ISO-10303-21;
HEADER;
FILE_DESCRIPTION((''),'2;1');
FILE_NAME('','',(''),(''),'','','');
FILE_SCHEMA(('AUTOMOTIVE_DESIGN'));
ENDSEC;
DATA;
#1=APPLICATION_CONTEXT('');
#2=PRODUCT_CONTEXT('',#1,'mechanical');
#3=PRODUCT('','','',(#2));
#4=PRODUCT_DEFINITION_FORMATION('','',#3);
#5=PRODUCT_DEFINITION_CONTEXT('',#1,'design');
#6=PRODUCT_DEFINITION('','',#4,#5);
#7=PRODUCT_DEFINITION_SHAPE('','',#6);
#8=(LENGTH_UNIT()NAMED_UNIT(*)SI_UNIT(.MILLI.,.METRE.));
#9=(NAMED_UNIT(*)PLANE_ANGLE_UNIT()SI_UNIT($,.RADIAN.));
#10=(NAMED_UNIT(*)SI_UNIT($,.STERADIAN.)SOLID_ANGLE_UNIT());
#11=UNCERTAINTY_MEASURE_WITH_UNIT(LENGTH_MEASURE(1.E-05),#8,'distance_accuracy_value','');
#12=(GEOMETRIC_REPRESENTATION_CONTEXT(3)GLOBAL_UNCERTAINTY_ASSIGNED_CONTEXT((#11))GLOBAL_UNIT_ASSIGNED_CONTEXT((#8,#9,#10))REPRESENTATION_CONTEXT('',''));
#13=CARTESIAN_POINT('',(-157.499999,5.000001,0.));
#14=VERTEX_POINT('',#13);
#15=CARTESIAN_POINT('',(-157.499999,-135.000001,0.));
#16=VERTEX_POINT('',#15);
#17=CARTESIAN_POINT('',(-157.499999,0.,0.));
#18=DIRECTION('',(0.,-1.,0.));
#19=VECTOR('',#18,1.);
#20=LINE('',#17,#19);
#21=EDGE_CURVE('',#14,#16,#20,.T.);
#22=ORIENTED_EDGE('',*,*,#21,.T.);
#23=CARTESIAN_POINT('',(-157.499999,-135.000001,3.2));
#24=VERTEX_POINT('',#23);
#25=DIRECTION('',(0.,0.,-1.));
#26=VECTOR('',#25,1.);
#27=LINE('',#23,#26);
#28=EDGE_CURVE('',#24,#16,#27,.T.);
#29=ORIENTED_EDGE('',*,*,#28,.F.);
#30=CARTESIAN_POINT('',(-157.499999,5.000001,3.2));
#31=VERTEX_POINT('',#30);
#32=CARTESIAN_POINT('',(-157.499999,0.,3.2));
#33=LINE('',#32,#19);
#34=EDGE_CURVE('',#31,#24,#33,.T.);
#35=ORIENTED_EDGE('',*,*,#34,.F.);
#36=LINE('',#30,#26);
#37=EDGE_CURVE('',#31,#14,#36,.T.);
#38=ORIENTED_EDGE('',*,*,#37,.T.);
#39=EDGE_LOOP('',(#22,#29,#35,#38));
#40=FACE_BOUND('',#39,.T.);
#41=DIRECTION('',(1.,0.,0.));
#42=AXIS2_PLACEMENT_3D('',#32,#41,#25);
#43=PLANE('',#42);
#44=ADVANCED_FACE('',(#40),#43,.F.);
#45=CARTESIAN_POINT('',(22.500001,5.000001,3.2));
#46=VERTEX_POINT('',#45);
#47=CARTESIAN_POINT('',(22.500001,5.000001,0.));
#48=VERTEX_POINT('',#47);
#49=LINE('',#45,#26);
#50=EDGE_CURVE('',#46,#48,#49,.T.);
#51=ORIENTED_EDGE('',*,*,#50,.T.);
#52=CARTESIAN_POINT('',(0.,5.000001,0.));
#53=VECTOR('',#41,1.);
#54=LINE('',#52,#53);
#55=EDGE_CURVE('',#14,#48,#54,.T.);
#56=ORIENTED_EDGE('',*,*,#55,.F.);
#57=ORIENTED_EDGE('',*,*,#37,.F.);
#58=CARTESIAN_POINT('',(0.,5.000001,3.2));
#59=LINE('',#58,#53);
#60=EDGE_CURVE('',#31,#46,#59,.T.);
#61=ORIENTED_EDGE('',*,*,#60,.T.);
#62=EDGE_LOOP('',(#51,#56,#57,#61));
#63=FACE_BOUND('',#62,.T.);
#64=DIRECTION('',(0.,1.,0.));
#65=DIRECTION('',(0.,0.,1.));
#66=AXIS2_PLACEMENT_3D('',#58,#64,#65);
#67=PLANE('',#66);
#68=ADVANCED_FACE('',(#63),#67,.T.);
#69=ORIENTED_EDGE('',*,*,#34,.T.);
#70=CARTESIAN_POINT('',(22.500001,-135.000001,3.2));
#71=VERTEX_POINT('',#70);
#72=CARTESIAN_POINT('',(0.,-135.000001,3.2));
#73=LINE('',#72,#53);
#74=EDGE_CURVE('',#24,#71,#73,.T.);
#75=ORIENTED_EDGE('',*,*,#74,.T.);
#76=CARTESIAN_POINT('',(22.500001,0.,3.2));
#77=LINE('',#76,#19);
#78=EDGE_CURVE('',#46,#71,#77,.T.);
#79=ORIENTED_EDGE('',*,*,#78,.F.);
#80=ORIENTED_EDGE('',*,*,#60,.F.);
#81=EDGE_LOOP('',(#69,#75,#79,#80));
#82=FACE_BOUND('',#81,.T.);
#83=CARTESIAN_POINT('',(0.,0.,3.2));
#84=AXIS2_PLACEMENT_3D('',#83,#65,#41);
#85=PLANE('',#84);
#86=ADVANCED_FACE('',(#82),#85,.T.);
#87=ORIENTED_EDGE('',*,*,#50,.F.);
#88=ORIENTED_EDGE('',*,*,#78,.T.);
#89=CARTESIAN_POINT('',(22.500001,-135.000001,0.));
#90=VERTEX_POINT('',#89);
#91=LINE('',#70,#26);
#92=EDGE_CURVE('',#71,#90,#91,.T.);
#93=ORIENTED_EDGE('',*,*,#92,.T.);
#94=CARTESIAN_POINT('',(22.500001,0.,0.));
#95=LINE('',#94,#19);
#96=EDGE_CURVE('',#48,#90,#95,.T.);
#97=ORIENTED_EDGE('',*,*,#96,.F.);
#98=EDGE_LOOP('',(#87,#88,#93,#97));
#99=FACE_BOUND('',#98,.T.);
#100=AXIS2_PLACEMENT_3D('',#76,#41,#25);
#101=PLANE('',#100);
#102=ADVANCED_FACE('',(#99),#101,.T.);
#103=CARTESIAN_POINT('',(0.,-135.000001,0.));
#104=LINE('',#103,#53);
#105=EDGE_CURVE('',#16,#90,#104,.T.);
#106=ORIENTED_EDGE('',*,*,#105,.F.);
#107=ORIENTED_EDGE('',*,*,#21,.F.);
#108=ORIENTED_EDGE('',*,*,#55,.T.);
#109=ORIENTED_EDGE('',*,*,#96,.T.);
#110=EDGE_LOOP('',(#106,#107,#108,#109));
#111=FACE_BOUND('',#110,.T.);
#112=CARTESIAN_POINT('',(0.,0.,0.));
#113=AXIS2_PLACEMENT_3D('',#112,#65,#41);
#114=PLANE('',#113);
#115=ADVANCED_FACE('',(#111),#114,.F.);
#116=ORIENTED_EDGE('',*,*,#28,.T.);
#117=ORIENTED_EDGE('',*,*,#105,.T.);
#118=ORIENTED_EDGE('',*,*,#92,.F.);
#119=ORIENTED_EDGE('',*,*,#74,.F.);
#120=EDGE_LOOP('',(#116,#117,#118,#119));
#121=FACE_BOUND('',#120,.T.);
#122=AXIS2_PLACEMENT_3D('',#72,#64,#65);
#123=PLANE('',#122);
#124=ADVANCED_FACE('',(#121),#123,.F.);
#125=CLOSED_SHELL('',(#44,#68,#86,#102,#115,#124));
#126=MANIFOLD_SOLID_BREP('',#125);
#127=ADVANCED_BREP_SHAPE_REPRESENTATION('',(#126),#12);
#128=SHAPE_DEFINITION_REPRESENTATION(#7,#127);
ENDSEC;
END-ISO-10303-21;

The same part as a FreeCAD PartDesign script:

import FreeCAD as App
import Part
import Sketcher


def add_polygon(sketch, points):
    """Adds a closed chain of lines whose ends are joined by coincident constraints."""
    first, n = sketch.GeometryCount, len(points)
    for a, b in zip(points, points[1:] + points[:1]):
        sketch.addGeometry(Part.LineSegment(App.Vector(*a, 0), App.Vector(*b, 0)), False)
    for i in range(n):
        sketch.addConstraint(Sketcher.Constraint("Coincident", first + i, 2, first + (i + 1) % n, 1))

doc = App.newDocument("Part")
params = doc.addObject("Spreadsheet::Sheet", "Params")
for row, (alias, value) in enumerate([
    ("sketch1_width", "180 mm"),
    ("sketch1_height", "140.000002 mm"),
    ("pad1_length", "3.2 mm"),
], start=1):
    params.set(f"A{row}", alias)
    params.set(f"B{row}", "=" + value)
    params.setAlias(f"B{row}", alias)

body = doc.addObject("PartDesign::Body", "Body")

# Sketch on XY plane
sketch1 = doc.addObject("Sketcher::SketchObject", "Sketch")
body.addObject(sketch1)
sketch1.AttachmentSupport = (doc.XY_Plane, [""])
sketch1.MapMode = "FlatFace"
add_polygon(sketch1, [(23, -135), (23, 5), (-157, 5), (-157, -135)])  # lines 0-3
sketch1.addConstraint([
    Sketcher.Constraint("Vertical", 0),
    Sketcher.Constraint("Horizontal", 1),
    Sketcher.Constraint("Vertical", 2),
    Sketcher.Constraint("Horizontal", 3),
    Sketcher.Constraint("DistanceX", 1, 2, 1, 1, 180.0),
    Sketcher.Constraint("DistanceY", 0, 1, 0, 2, 140.000002),
    Sketcher.Constraint("DistanceY", -1, 1, 0, 2, 5.000001),
    Sketcher.Constraint("DistanceX", -1, 1, 0, 2, 22.500001),
])
sketch1.setExpression("Constraints[8]", "Params.sketch1_width")
sketch1.setExpression("Constraints[9]", "Params.sketch1_height")
pad1 = doc.addObject("PartDesign::Pad", "Pad")
body.addObject(pad1)
pad1.Profile = sketch1
pad1.setExpression("Length", "Params.pad1_length")

doc.recompute()
